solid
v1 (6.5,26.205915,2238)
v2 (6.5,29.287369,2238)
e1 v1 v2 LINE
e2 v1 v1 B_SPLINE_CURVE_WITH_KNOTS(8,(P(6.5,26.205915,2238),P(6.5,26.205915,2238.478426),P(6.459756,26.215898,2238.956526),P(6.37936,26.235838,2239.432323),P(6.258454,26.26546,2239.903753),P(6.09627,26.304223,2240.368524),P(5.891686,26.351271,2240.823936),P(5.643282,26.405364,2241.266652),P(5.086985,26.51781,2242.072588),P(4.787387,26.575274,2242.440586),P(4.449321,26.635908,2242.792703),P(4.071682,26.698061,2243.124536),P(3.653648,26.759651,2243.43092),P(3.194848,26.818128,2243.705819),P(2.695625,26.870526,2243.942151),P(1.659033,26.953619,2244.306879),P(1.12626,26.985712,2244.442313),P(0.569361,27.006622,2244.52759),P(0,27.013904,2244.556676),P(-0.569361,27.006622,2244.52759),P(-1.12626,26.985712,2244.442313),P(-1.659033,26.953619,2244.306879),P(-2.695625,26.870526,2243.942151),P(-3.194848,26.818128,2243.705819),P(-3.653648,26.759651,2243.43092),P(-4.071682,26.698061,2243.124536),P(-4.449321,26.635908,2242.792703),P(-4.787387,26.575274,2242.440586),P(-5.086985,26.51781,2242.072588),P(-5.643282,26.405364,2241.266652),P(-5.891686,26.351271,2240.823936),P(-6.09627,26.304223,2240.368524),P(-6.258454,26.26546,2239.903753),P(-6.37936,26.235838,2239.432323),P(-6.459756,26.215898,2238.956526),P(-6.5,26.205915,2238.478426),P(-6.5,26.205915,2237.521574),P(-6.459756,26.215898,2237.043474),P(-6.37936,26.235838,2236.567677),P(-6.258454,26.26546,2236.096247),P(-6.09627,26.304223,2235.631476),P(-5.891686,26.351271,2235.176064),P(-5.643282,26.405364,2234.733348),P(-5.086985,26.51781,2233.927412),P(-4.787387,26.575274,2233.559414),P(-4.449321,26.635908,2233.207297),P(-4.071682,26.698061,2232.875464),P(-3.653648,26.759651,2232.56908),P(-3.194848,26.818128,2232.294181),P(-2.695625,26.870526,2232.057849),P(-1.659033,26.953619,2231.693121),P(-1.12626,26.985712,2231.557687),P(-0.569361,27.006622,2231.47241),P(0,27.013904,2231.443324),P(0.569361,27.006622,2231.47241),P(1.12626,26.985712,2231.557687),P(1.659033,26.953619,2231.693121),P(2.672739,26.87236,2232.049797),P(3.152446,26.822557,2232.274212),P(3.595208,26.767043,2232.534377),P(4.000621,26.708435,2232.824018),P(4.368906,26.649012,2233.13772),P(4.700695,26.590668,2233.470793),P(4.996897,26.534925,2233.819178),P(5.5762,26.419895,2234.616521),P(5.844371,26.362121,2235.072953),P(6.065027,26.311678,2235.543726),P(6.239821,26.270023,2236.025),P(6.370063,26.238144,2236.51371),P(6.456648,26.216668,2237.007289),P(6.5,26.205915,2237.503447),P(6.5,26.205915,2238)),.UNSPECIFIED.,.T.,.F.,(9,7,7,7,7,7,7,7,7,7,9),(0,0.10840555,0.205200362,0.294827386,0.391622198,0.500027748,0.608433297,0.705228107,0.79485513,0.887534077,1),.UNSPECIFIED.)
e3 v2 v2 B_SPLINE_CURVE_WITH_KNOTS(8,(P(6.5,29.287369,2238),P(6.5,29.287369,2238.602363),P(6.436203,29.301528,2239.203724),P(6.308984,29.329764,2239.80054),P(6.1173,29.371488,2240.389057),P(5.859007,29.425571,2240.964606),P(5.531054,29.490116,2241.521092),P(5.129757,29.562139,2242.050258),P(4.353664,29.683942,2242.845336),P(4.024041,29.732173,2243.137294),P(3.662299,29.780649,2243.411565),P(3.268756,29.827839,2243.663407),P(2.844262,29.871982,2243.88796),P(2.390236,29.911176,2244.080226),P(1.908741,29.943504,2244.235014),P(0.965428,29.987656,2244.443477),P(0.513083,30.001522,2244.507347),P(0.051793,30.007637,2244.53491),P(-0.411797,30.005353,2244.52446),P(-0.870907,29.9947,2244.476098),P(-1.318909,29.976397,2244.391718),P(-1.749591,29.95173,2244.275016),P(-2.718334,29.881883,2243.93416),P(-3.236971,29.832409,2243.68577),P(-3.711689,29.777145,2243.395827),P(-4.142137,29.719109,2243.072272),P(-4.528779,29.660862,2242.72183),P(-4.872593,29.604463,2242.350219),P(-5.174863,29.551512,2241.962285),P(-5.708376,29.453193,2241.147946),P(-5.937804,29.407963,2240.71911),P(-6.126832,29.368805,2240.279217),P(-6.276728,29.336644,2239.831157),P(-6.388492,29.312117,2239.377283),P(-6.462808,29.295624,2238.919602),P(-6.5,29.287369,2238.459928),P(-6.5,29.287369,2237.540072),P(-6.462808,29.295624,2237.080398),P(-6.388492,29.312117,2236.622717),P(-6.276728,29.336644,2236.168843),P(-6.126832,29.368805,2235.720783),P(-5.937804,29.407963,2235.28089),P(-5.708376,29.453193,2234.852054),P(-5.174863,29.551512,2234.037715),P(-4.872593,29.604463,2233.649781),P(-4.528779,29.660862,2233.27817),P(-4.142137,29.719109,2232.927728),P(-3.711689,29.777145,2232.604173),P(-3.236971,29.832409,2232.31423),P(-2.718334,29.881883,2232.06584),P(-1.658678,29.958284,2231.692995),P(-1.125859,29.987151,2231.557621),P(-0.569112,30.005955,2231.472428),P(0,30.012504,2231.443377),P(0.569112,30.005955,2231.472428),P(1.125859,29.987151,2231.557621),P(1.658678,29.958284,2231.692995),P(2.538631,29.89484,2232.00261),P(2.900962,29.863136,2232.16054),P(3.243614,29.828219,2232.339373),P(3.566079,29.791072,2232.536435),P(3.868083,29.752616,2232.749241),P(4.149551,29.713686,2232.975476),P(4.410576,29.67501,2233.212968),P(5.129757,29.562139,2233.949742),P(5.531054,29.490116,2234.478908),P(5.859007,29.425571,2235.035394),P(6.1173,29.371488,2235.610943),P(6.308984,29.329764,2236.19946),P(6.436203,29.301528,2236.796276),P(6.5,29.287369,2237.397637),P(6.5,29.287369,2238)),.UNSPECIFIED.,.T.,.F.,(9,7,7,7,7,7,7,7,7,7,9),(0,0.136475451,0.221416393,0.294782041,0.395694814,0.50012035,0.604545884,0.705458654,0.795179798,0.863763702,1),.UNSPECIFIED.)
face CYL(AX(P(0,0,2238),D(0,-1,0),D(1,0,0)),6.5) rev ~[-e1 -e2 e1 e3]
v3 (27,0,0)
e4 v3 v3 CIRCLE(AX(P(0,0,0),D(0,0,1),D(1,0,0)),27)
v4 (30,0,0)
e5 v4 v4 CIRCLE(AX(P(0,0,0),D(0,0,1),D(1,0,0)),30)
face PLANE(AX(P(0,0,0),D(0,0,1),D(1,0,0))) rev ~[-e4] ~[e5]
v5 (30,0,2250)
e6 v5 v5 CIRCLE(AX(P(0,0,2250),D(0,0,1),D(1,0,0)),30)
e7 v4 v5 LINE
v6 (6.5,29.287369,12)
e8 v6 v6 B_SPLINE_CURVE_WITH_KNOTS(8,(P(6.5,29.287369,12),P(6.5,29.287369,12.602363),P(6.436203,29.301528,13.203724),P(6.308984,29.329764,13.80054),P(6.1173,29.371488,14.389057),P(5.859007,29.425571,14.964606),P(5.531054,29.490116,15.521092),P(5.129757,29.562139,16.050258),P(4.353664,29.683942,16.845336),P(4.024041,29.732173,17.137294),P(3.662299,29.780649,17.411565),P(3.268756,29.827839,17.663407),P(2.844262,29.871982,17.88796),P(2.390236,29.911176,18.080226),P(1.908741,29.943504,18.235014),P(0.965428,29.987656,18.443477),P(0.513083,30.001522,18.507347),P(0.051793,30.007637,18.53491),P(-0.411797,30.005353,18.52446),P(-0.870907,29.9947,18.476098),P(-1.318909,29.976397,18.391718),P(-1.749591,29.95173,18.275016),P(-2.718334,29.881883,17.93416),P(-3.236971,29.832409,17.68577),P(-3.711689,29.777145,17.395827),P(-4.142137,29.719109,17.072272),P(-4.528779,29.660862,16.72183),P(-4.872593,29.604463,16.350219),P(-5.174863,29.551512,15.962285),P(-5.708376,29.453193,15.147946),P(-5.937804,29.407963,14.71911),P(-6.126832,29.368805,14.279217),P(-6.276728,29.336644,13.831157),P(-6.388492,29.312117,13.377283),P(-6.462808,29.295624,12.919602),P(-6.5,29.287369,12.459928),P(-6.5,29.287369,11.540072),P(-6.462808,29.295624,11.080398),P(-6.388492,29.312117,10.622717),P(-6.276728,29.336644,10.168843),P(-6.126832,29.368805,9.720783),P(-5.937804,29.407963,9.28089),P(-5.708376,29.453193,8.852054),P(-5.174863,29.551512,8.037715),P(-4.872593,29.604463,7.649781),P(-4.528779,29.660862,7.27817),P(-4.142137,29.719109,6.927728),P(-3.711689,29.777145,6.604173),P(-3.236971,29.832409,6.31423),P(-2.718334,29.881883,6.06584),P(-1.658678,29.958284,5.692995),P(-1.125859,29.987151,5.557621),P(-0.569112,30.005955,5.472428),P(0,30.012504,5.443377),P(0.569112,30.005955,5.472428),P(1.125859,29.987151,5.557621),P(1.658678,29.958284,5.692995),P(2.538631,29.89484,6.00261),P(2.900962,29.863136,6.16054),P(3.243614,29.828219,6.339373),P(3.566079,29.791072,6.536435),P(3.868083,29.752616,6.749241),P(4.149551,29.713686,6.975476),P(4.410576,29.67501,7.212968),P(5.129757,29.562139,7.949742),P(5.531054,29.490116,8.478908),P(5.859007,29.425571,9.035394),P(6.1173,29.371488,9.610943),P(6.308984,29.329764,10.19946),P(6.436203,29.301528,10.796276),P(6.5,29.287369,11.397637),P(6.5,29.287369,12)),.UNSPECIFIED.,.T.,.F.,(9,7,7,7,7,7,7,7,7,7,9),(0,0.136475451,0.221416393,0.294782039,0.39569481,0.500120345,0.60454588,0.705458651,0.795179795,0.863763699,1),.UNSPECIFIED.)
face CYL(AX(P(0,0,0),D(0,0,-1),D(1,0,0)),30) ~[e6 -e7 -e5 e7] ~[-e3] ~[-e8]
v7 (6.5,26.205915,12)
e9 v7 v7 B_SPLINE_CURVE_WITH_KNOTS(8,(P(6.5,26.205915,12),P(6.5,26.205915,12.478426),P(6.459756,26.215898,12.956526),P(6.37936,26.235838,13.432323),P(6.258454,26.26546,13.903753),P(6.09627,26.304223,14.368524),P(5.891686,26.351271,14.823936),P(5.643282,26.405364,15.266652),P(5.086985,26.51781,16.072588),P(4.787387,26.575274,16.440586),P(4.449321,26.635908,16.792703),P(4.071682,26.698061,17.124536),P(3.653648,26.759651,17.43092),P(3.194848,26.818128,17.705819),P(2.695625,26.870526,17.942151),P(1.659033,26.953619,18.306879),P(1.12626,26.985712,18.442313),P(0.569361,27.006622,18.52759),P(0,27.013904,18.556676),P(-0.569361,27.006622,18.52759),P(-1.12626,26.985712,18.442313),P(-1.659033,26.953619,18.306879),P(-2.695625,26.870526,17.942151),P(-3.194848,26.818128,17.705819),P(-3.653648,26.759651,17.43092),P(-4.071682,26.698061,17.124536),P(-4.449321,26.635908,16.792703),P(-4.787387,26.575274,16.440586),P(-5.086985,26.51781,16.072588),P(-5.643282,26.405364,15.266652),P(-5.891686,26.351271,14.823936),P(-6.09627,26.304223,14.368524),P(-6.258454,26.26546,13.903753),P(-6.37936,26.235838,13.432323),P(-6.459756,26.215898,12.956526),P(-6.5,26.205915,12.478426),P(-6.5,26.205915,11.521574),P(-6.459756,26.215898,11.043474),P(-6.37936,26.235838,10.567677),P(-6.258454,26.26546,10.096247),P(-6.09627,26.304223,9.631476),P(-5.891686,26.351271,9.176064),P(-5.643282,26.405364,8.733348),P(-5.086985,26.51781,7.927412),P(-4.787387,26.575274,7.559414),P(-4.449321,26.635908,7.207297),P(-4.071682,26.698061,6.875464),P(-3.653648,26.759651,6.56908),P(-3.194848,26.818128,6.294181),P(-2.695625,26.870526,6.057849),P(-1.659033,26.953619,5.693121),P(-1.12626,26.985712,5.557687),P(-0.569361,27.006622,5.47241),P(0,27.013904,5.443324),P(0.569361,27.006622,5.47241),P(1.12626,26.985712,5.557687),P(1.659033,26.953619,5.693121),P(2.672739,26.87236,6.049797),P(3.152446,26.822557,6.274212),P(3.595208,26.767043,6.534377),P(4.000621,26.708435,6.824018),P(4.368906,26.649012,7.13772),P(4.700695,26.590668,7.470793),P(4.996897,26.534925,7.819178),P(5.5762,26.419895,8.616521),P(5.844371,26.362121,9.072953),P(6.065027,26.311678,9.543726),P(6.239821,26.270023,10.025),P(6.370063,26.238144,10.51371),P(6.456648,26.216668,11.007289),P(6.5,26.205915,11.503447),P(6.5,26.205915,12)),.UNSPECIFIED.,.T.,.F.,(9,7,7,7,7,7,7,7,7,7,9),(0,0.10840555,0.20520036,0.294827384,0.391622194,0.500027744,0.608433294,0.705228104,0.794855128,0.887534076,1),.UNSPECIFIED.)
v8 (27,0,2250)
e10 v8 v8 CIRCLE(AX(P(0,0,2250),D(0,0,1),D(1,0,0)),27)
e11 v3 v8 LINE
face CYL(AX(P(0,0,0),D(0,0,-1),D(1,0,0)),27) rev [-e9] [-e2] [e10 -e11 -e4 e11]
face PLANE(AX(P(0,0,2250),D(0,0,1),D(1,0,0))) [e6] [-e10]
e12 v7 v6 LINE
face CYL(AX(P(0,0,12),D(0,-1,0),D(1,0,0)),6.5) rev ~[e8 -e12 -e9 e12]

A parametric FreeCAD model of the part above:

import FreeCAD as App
import Part
import Sketcher
from FreeCAD import Vector

doc = App.newDocument("Part")
body = doc.addObject("PartDesign::Body", "Body")

# Sketch on XY plane
sketch1 = body.newObject("Sketcher::SketchObject", "Sketch")
sketch1.AttachmentSupport = (doc.getObject("XY_Plane"), [""])
sketch1.MapMode = "FlatFace"
sketch1.addGeometry([
    Part.Circle(Vector(0, 0, 0), Vector(0, 0, 1), 30),
    Part.Circle(Vector(0, 0, 0), Vector(0, 0, 1), 27),
], False)
sketch1.addConstraint([
    Sketcher.Constraint("Coincident", 0, 3, -1, 1),
    Sketcher.Constraint("Coincident", 1, 3, -1, 1),
    Sketcher.Constraint("Diameter", 0, 60.0),
    Sketcher.Constraint("Diameter", 1, 54.0),
])
pad1 = body.newObject("PartDesign::Pad", "Pad")
pad1.Profile = sketch1
pad1.Length = 2250

# Sketch on XZ plane
sketch2 = body.newObject("Sketcher::SketchObject", "Sketch001")
sketch2.AttachmentSupport = (doc.getObject("XZ_Plane"), [""])
sketch2.MapMode = "FlatFace"
sketch2.addGeometry([
    Part.Circle(Vector(0, 12, 0), Vector(0, 0, 1), 6.5),
    Part.Circle(Vector(0, 2238, 0), Vector(0, 0, 1), 6.5),
], False)
sketch2.addConstraint([
    Sketcher.Constraint("Equal", 0, 1),
    Sketcher.Constraint("PointOnObject", 0, 3, -2),
    Sketcher.Constraint("PointOnObject", 1, 3, -2),
    Sketcher.Constraint("Diameter", 0, 13.0),
    Sketcher.Constraint("DistanceY", -1, 1, 0, 3, 12.0),
    Sketcher.Constraint("DistanceY", -1, 1, 1, 3, 2238.0),
])
pocket1 = body.newObject("PartDesign::Pocket", "Pocket")
pocket1.Profile = sketch2
pocket1.Length = 60

doc.recompute()
